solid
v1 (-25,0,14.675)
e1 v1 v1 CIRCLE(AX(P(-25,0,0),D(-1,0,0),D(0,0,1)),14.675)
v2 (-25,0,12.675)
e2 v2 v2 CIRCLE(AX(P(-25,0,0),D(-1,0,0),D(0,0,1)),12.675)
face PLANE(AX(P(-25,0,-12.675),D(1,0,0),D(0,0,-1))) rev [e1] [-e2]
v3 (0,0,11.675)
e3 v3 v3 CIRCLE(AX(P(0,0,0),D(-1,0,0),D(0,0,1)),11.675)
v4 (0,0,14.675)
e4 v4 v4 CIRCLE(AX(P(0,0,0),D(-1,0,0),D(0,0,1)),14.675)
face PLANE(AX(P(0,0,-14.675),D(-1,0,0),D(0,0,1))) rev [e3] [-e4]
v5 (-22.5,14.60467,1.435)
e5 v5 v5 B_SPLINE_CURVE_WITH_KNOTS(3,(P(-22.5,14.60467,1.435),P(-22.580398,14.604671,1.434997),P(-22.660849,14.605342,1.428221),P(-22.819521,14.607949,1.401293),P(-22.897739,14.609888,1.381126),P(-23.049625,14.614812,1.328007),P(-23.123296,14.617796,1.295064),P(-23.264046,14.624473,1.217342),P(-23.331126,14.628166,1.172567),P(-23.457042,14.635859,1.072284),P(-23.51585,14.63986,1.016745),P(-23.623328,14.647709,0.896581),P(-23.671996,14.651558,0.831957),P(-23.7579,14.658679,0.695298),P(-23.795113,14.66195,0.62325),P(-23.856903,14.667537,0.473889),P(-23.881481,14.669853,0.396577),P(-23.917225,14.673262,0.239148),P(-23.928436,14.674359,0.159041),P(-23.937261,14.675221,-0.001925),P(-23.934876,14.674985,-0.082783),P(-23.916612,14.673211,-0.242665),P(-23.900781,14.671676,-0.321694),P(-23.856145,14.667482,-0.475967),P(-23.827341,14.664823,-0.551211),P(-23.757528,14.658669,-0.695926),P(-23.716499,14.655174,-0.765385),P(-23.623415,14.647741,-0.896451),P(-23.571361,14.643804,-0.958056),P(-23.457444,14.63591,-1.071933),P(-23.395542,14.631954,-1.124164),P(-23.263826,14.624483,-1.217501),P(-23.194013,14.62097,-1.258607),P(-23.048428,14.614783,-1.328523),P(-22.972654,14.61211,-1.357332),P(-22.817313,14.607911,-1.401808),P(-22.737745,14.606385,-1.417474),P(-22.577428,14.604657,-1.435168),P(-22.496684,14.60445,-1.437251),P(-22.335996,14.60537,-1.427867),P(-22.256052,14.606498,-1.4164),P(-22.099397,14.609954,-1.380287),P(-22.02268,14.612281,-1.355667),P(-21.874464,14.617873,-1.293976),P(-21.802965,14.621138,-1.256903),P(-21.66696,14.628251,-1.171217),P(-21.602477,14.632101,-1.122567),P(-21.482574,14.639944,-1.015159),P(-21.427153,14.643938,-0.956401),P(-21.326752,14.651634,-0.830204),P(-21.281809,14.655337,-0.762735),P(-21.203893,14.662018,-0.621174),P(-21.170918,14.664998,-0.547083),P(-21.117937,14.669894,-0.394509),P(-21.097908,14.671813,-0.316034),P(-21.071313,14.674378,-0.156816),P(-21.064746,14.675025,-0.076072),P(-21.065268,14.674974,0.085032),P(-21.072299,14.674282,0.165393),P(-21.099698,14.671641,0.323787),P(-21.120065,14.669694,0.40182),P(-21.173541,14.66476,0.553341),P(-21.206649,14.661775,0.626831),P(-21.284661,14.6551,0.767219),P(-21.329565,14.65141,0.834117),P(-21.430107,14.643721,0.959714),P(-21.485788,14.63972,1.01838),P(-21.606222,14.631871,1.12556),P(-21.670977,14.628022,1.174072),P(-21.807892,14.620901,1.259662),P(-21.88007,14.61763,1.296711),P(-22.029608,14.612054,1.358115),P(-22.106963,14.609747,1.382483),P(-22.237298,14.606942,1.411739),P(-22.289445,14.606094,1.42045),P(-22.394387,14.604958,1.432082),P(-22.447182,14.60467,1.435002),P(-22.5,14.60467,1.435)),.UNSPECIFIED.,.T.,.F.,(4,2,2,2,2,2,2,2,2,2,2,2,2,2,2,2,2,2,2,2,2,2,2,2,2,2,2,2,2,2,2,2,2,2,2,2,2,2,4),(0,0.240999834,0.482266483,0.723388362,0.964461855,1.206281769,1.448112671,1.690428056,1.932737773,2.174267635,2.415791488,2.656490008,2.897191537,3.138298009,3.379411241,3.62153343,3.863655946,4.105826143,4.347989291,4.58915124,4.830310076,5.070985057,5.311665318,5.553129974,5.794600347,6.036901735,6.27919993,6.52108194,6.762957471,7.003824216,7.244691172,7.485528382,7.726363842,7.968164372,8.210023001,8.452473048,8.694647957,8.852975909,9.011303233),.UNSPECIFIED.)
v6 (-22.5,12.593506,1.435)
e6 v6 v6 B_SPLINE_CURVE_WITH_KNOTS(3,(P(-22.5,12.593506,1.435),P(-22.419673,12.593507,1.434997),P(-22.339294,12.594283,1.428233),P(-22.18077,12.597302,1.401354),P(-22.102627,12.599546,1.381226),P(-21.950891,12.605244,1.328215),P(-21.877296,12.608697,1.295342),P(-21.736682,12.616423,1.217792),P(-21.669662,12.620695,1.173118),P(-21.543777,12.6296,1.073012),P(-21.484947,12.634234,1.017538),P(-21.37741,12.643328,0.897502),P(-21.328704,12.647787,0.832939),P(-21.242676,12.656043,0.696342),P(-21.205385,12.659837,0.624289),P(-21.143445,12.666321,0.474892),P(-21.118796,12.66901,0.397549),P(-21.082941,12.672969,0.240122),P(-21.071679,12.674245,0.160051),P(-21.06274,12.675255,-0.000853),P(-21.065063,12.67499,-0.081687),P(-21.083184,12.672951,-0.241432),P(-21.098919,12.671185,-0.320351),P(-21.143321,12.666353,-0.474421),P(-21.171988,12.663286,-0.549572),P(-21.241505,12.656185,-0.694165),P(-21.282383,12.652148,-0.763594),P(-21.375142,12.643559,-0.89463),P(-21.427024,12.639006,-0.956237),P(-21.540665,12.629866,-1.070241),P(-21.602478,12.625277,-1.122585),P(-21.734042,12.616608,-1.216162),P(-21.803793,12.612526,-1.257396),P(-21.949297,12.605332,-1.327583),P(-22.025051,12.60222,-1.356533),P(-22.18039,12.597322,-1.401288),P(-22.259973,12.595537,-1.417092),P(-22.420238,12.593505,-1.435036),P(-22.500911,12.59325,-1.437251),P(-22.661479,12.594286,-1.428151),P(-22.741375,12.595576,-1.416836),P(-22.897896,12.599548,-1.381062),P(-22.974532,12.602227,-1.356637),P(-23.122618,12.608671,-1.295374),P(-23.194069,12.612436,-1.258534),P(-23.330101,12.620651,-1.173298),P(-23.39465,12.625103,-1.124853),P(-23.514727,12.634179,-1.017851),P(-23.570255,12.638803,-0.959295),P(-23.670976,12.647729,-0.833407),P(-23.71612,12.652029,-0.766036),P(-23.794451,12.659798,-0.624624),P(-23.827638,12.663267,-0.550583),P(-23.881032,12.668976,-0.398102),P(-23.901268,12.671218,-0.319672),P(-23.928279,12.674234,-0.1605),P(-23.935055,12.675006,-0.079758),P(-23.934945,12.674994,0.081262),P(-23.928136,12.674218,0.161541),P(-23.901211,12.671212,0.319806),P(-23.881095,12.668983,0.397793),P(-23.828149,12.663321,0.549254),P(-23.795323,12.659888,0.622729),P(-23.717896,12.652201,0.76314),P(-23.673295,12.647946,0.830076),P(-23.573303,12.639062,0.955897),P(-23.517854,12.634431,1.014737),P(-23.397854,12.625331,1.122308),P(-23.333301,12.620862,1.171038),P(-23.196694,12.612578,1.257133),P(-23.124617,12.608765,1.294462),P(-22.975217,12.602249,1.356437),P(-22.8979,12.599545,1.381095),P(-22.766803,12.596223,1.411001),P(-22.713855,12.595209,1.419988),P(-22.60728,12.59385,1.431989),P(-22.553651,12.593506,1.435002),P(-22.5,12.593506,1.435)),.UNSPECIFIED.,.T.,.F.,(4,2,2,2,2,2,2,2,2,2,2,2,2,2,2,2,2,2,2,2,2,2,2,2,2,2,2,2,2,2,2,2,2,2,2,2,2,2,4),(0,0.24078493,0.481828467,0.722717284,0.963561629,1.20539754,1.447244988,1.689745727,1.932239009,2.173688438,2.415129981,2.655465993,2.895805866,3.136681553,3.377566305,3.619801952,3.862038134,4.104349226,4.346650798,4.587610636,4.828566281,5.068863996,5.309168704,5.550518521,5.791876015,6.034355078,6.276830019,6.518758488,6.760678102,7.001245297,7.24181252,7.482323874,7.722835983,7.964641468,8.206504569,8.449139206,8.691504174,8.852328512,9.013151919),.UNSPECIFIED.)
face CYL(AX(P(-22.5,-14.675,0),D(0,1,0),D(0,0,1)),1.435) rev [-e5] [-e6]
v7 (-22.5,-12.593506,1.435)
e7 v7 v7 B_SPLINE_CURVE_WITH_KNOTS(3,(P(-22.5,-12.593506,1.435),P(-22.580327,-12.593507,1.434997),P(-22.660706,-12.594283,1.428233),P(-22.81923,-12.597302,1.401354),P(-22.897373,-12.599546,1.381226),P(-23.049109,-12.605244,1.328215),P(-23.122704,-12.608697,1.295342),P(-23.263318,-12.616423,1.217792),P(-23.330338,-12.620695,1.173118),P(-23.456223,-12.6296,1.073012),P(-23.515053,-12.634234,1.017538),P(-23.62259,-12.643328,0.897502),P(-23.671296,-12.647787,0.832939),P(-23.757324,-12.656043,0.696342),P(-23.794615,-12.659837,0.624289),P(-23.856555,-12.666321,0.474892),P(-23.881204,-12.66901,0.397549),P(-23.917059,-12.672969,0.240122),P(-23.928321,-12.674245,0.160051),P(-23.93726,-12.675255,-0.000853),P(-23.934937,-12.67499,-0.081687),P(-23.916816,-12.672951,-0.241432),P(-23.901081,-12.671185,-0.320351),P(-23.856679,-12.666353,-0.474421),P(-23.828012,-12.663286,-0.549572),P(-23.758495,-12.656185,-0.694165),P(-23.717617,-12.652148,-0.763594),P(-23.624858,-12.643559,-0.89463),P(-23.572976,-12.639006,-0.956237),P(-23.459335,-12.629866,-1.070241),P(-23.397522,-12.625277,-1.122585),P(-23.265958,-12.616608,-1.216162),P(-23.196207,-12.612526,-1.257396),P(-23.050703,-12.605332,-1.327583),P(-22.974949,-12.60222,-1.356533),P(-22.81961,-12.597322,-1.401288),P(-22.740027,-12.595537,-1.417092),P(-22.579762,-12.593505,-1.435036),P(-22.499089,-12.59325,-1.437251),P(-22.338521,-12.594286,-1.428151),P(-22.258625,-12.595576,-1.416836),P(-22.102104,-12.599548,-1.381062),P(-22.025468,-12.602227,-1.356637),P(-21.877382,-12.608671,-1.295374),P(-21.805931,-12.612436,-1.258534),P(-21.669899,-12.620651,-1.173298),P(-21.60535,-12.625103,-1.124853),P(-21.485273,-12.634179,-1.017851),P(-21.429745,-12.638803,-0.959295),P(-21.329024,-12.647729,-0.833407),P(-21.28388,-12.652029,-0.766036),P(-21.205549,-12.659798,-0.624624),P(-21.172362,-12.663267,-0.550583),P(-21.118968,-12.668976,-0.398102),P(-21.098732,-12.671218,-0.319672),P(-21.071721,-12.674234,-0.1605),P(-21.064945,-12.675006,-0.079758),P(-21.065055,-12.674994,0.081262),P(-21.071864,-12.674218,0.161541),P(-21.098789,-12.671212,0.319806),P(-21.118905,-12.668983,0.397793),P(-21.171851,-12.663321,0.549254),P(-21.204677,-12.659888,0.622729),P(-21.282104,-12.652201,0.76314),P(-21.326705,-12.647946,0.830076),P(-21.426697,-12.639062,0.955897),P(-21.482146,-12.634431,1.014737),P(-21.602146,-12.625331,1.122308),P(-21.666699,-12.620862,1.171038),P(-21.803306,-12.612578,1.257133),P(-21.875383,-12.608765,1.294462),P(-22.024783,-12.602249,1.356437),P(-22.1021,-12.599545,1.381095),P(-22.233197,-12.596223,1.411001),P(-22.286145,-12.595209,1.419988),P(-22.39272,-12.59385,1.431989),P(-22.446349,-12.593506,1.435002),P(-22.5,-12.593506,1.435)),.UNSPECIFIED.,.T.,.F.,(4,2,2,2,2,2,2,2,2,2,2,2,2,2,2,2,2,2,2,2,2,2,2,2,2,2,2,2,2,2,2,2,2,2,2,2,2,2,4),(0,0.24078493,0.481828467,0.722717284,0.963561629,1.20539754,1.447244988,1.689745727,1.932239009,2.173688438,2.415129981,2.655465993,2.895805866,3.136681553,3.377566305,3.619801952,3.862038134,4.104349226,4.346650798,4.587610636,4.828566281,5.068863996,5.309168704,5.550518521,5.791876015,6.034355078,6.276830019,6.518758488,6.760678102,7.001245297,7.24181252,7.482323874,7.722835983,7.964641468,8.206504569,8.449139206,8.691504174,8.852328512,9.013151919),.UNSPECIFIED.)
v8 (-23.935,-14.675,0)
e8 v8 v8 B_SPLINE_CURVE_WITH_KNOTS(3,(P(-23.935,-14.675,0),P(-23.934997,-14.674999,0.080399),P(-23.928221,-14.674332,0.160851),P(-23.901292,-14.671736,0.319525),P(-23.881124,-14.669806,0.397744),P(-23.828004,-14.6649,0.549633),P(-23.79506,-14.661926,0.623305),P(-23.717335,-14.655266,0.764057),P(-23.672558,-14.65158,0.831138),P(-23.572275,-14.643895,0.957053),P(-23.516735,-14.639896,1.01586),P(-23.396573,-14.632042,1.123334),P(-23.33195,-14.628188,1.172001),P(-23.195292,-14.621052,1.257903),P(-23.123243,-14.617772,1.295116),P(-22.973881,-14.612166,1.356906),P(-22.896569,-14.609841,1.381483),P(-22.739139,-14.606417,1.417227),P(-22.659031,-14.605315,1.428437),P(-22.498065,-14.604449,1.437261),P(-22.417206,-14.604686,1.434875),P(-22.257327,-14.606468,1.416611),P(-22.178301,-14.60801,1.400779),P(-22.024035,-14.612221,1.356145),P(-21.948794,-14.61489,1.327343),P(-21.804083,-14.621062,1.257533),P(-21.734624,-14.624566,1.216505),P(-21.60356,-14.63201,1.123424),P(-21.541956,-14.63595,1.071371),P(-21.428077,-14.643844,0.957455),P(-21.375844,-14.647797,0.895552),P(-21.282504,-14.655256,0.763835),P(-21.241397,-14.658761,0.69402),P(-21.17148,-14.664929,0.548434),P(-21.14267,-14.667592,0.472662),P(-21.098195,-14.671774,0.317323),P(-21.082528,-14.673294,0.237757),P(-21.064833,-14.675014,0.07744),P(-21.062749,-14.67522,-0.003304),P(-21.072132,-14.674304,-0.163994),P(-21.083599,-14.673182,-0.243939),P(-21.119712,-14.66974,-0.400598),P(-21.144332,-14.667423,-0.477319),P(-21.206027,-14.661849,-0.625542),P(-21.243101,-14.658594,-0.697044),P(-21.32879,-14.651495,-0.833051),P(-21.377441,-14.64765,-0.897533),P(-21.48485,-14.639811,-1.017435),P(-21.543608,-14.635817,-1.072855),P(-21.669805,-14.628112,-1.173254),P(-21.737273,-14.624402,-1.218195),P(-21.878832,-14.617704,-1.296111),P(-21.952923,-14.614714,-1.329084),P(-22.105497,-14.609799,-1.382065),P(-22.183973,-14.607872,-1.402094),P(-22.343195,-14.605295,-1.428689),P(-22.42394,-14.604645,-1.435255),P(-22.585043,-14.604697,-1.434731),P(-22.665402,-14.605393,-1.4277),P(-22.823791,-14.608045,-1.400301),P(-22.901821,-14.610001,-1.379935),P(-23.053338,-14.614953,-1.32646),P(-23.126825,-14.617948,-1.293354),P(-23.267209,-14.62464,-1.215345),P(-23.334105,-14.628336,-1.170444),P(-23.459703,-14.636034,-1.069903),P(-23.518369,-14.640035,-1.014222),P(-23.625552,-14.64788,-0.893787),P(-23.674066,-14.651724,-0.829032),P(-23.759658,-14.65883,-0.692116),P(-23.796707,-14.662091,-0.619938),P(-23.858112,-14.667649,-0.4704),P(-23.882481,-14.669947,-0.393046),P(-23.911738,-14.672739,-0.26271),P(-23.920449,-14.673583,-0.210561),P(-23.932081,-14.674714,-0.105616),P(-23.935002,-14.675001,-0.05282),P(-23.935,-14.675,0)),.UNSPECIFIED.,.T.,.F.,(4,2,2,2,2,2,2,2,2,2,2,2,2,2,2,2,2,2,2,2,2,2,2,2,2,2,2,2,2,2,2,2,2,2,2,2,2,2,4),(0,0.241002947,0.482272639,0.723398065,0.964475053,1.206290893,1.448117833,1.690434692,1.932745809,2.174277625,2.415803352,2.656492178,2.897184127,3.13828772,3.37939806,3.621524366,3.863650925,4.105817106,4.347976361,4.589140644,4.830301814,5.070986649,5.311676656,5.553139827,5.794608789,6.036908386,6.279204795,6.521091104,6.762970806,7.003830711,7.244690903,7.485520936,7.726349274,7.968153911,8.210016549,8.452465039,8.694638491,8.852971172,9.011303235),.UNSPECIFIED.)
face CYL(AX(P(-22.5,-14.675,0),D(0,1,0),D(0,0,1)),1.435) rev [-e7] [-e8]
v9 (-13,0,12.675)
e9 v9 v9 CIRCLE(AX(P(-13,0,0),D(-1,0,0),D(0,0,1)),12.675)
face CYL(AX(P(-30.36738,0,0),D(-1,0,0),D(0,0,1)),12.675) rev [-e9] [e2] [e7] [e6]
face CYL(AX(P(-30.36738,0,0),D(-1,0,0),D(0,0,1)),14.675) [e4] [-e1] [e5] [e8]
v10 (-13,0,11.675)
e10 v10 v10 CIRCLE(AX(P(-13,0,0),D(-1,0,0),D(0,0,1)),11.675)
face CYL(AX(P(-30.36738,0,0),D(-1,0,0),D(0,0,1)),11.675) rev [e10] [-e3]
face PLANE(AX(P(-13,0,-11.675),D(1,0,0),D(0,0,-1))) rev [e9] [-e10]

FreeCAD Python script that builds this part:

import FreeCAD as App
import Part
import Sketcher

V = App.Vector


def add_polygon(sketch, points):
    """Adds a closed chain of lines whose ends are joined by coincident constraints."""
    first, n = sketch.GeometryCount, len(points)
    for a, b in zip(points, points[1:] + points[:1]):
        sketch.addGeometry(Part.LineSegment(App.Vector(*a, 0), App.Vector(*b, 0)), False)
    for i in range(n):
        sketch.addConstraint(Sketcher.Constraint("Coincident", first + i, 2, first + (i + 1) % n, 1))

doc = App.newDocument("Part")
body = doc.addObject("PartDesign::Body", "Body")

# Sketch on XZ plane
sketch1 = doc.addObject("Sketcher::SketchObject", "Sketch")
body.addObject(sketch1)
sketch1.AttachmentSupport = (doc.XZ_Plane, [""])
sketch1.MapMode = "FlatFace"
add_polygon(sketch1, [(-13, -11.7), (0, -11.7), (0, -14.7), (-25, -14.7), (-25, -12.7), (-13, -12.7)])  # lines 0-5
sketch1.addConstraint(Sketcher.Constraint("Horizontal", 0))
sketch1.addConstraint(Sketcher.Constraint("Vertical", 1))
sketch1.addConstraint(Sketcher.Constraint("Horizontal", 2))
sketch1.addConstraint(Sketcher.Constraint("Vertical", 3))
sketch1.addConstraint(Sketcher.Constraint("Horizontal", 4))
sketch1.addConstraint(Sketcher.Constraint("Vertical", 5))
sketch1.addConstraint(Sketcher.Constraint("PointOnObject", 0, 2, -2))
sketch1.addConstraint(Sketcher.Constraint("DistanceX", 0, 1, 0, 2, 13.0))
sketch1.addConstraint(Sketcher.Constraint("DistanceX", 2, 2, 2, 1, 25.0))
sketch1.addConstraint(Sketcher.Constraint("DistanceY", 1, 2, 1, 1, 3.0))
sketch1.addConstraint(Sketcher.Constraint("DistanceY", 3, 1, 3, 2, 2.0))
sketch1.addConstraint(Sketcher.Constraint("DistanceY", 0, 2, -1, 1, 11.675))
revolution = doc.addObject("PartDesign::Revolution", "Revolution")
body.addObject(revolution)
revolution.Profile = sketch1
revolution.ReferenceAxis = (sketch1, ["H_Axis"])
revolution.Angle = 360

# Sketch on XZ plane
sketch2 = doc.addObject("Sketcher::SketchObject", "Sketch001")
body.addObject(sketch2)
sketch2.AttachmentSupport = (doc.XZ_Plane, [""])
sketch2.MapMode = "FlatFace"
sketch2.addGeometry(Part.Circle(V(-22.5, 0, 0), V(0, 0, 1), 1.4), False)
sketch2.addConstraint(Sketcher.Constraint("PointOnObject", 0, 3, -1))
sketch2.addConstraint(Sketcher.Constraint("Diameter", 0, 2.87))
sketch2.addConstraint(Sketcher.Constraint("DistanceX", 0, 3, -1, 1, 22.5))
pocket1 = doc.addObject("PartDesign::Pocket", "Pocket")
body.addObject(pocket1)
pocket1.Profile = sketch2
pocket1.Type = "ThroughAll"
pocket1.Midplane = True

doc.recompute()
